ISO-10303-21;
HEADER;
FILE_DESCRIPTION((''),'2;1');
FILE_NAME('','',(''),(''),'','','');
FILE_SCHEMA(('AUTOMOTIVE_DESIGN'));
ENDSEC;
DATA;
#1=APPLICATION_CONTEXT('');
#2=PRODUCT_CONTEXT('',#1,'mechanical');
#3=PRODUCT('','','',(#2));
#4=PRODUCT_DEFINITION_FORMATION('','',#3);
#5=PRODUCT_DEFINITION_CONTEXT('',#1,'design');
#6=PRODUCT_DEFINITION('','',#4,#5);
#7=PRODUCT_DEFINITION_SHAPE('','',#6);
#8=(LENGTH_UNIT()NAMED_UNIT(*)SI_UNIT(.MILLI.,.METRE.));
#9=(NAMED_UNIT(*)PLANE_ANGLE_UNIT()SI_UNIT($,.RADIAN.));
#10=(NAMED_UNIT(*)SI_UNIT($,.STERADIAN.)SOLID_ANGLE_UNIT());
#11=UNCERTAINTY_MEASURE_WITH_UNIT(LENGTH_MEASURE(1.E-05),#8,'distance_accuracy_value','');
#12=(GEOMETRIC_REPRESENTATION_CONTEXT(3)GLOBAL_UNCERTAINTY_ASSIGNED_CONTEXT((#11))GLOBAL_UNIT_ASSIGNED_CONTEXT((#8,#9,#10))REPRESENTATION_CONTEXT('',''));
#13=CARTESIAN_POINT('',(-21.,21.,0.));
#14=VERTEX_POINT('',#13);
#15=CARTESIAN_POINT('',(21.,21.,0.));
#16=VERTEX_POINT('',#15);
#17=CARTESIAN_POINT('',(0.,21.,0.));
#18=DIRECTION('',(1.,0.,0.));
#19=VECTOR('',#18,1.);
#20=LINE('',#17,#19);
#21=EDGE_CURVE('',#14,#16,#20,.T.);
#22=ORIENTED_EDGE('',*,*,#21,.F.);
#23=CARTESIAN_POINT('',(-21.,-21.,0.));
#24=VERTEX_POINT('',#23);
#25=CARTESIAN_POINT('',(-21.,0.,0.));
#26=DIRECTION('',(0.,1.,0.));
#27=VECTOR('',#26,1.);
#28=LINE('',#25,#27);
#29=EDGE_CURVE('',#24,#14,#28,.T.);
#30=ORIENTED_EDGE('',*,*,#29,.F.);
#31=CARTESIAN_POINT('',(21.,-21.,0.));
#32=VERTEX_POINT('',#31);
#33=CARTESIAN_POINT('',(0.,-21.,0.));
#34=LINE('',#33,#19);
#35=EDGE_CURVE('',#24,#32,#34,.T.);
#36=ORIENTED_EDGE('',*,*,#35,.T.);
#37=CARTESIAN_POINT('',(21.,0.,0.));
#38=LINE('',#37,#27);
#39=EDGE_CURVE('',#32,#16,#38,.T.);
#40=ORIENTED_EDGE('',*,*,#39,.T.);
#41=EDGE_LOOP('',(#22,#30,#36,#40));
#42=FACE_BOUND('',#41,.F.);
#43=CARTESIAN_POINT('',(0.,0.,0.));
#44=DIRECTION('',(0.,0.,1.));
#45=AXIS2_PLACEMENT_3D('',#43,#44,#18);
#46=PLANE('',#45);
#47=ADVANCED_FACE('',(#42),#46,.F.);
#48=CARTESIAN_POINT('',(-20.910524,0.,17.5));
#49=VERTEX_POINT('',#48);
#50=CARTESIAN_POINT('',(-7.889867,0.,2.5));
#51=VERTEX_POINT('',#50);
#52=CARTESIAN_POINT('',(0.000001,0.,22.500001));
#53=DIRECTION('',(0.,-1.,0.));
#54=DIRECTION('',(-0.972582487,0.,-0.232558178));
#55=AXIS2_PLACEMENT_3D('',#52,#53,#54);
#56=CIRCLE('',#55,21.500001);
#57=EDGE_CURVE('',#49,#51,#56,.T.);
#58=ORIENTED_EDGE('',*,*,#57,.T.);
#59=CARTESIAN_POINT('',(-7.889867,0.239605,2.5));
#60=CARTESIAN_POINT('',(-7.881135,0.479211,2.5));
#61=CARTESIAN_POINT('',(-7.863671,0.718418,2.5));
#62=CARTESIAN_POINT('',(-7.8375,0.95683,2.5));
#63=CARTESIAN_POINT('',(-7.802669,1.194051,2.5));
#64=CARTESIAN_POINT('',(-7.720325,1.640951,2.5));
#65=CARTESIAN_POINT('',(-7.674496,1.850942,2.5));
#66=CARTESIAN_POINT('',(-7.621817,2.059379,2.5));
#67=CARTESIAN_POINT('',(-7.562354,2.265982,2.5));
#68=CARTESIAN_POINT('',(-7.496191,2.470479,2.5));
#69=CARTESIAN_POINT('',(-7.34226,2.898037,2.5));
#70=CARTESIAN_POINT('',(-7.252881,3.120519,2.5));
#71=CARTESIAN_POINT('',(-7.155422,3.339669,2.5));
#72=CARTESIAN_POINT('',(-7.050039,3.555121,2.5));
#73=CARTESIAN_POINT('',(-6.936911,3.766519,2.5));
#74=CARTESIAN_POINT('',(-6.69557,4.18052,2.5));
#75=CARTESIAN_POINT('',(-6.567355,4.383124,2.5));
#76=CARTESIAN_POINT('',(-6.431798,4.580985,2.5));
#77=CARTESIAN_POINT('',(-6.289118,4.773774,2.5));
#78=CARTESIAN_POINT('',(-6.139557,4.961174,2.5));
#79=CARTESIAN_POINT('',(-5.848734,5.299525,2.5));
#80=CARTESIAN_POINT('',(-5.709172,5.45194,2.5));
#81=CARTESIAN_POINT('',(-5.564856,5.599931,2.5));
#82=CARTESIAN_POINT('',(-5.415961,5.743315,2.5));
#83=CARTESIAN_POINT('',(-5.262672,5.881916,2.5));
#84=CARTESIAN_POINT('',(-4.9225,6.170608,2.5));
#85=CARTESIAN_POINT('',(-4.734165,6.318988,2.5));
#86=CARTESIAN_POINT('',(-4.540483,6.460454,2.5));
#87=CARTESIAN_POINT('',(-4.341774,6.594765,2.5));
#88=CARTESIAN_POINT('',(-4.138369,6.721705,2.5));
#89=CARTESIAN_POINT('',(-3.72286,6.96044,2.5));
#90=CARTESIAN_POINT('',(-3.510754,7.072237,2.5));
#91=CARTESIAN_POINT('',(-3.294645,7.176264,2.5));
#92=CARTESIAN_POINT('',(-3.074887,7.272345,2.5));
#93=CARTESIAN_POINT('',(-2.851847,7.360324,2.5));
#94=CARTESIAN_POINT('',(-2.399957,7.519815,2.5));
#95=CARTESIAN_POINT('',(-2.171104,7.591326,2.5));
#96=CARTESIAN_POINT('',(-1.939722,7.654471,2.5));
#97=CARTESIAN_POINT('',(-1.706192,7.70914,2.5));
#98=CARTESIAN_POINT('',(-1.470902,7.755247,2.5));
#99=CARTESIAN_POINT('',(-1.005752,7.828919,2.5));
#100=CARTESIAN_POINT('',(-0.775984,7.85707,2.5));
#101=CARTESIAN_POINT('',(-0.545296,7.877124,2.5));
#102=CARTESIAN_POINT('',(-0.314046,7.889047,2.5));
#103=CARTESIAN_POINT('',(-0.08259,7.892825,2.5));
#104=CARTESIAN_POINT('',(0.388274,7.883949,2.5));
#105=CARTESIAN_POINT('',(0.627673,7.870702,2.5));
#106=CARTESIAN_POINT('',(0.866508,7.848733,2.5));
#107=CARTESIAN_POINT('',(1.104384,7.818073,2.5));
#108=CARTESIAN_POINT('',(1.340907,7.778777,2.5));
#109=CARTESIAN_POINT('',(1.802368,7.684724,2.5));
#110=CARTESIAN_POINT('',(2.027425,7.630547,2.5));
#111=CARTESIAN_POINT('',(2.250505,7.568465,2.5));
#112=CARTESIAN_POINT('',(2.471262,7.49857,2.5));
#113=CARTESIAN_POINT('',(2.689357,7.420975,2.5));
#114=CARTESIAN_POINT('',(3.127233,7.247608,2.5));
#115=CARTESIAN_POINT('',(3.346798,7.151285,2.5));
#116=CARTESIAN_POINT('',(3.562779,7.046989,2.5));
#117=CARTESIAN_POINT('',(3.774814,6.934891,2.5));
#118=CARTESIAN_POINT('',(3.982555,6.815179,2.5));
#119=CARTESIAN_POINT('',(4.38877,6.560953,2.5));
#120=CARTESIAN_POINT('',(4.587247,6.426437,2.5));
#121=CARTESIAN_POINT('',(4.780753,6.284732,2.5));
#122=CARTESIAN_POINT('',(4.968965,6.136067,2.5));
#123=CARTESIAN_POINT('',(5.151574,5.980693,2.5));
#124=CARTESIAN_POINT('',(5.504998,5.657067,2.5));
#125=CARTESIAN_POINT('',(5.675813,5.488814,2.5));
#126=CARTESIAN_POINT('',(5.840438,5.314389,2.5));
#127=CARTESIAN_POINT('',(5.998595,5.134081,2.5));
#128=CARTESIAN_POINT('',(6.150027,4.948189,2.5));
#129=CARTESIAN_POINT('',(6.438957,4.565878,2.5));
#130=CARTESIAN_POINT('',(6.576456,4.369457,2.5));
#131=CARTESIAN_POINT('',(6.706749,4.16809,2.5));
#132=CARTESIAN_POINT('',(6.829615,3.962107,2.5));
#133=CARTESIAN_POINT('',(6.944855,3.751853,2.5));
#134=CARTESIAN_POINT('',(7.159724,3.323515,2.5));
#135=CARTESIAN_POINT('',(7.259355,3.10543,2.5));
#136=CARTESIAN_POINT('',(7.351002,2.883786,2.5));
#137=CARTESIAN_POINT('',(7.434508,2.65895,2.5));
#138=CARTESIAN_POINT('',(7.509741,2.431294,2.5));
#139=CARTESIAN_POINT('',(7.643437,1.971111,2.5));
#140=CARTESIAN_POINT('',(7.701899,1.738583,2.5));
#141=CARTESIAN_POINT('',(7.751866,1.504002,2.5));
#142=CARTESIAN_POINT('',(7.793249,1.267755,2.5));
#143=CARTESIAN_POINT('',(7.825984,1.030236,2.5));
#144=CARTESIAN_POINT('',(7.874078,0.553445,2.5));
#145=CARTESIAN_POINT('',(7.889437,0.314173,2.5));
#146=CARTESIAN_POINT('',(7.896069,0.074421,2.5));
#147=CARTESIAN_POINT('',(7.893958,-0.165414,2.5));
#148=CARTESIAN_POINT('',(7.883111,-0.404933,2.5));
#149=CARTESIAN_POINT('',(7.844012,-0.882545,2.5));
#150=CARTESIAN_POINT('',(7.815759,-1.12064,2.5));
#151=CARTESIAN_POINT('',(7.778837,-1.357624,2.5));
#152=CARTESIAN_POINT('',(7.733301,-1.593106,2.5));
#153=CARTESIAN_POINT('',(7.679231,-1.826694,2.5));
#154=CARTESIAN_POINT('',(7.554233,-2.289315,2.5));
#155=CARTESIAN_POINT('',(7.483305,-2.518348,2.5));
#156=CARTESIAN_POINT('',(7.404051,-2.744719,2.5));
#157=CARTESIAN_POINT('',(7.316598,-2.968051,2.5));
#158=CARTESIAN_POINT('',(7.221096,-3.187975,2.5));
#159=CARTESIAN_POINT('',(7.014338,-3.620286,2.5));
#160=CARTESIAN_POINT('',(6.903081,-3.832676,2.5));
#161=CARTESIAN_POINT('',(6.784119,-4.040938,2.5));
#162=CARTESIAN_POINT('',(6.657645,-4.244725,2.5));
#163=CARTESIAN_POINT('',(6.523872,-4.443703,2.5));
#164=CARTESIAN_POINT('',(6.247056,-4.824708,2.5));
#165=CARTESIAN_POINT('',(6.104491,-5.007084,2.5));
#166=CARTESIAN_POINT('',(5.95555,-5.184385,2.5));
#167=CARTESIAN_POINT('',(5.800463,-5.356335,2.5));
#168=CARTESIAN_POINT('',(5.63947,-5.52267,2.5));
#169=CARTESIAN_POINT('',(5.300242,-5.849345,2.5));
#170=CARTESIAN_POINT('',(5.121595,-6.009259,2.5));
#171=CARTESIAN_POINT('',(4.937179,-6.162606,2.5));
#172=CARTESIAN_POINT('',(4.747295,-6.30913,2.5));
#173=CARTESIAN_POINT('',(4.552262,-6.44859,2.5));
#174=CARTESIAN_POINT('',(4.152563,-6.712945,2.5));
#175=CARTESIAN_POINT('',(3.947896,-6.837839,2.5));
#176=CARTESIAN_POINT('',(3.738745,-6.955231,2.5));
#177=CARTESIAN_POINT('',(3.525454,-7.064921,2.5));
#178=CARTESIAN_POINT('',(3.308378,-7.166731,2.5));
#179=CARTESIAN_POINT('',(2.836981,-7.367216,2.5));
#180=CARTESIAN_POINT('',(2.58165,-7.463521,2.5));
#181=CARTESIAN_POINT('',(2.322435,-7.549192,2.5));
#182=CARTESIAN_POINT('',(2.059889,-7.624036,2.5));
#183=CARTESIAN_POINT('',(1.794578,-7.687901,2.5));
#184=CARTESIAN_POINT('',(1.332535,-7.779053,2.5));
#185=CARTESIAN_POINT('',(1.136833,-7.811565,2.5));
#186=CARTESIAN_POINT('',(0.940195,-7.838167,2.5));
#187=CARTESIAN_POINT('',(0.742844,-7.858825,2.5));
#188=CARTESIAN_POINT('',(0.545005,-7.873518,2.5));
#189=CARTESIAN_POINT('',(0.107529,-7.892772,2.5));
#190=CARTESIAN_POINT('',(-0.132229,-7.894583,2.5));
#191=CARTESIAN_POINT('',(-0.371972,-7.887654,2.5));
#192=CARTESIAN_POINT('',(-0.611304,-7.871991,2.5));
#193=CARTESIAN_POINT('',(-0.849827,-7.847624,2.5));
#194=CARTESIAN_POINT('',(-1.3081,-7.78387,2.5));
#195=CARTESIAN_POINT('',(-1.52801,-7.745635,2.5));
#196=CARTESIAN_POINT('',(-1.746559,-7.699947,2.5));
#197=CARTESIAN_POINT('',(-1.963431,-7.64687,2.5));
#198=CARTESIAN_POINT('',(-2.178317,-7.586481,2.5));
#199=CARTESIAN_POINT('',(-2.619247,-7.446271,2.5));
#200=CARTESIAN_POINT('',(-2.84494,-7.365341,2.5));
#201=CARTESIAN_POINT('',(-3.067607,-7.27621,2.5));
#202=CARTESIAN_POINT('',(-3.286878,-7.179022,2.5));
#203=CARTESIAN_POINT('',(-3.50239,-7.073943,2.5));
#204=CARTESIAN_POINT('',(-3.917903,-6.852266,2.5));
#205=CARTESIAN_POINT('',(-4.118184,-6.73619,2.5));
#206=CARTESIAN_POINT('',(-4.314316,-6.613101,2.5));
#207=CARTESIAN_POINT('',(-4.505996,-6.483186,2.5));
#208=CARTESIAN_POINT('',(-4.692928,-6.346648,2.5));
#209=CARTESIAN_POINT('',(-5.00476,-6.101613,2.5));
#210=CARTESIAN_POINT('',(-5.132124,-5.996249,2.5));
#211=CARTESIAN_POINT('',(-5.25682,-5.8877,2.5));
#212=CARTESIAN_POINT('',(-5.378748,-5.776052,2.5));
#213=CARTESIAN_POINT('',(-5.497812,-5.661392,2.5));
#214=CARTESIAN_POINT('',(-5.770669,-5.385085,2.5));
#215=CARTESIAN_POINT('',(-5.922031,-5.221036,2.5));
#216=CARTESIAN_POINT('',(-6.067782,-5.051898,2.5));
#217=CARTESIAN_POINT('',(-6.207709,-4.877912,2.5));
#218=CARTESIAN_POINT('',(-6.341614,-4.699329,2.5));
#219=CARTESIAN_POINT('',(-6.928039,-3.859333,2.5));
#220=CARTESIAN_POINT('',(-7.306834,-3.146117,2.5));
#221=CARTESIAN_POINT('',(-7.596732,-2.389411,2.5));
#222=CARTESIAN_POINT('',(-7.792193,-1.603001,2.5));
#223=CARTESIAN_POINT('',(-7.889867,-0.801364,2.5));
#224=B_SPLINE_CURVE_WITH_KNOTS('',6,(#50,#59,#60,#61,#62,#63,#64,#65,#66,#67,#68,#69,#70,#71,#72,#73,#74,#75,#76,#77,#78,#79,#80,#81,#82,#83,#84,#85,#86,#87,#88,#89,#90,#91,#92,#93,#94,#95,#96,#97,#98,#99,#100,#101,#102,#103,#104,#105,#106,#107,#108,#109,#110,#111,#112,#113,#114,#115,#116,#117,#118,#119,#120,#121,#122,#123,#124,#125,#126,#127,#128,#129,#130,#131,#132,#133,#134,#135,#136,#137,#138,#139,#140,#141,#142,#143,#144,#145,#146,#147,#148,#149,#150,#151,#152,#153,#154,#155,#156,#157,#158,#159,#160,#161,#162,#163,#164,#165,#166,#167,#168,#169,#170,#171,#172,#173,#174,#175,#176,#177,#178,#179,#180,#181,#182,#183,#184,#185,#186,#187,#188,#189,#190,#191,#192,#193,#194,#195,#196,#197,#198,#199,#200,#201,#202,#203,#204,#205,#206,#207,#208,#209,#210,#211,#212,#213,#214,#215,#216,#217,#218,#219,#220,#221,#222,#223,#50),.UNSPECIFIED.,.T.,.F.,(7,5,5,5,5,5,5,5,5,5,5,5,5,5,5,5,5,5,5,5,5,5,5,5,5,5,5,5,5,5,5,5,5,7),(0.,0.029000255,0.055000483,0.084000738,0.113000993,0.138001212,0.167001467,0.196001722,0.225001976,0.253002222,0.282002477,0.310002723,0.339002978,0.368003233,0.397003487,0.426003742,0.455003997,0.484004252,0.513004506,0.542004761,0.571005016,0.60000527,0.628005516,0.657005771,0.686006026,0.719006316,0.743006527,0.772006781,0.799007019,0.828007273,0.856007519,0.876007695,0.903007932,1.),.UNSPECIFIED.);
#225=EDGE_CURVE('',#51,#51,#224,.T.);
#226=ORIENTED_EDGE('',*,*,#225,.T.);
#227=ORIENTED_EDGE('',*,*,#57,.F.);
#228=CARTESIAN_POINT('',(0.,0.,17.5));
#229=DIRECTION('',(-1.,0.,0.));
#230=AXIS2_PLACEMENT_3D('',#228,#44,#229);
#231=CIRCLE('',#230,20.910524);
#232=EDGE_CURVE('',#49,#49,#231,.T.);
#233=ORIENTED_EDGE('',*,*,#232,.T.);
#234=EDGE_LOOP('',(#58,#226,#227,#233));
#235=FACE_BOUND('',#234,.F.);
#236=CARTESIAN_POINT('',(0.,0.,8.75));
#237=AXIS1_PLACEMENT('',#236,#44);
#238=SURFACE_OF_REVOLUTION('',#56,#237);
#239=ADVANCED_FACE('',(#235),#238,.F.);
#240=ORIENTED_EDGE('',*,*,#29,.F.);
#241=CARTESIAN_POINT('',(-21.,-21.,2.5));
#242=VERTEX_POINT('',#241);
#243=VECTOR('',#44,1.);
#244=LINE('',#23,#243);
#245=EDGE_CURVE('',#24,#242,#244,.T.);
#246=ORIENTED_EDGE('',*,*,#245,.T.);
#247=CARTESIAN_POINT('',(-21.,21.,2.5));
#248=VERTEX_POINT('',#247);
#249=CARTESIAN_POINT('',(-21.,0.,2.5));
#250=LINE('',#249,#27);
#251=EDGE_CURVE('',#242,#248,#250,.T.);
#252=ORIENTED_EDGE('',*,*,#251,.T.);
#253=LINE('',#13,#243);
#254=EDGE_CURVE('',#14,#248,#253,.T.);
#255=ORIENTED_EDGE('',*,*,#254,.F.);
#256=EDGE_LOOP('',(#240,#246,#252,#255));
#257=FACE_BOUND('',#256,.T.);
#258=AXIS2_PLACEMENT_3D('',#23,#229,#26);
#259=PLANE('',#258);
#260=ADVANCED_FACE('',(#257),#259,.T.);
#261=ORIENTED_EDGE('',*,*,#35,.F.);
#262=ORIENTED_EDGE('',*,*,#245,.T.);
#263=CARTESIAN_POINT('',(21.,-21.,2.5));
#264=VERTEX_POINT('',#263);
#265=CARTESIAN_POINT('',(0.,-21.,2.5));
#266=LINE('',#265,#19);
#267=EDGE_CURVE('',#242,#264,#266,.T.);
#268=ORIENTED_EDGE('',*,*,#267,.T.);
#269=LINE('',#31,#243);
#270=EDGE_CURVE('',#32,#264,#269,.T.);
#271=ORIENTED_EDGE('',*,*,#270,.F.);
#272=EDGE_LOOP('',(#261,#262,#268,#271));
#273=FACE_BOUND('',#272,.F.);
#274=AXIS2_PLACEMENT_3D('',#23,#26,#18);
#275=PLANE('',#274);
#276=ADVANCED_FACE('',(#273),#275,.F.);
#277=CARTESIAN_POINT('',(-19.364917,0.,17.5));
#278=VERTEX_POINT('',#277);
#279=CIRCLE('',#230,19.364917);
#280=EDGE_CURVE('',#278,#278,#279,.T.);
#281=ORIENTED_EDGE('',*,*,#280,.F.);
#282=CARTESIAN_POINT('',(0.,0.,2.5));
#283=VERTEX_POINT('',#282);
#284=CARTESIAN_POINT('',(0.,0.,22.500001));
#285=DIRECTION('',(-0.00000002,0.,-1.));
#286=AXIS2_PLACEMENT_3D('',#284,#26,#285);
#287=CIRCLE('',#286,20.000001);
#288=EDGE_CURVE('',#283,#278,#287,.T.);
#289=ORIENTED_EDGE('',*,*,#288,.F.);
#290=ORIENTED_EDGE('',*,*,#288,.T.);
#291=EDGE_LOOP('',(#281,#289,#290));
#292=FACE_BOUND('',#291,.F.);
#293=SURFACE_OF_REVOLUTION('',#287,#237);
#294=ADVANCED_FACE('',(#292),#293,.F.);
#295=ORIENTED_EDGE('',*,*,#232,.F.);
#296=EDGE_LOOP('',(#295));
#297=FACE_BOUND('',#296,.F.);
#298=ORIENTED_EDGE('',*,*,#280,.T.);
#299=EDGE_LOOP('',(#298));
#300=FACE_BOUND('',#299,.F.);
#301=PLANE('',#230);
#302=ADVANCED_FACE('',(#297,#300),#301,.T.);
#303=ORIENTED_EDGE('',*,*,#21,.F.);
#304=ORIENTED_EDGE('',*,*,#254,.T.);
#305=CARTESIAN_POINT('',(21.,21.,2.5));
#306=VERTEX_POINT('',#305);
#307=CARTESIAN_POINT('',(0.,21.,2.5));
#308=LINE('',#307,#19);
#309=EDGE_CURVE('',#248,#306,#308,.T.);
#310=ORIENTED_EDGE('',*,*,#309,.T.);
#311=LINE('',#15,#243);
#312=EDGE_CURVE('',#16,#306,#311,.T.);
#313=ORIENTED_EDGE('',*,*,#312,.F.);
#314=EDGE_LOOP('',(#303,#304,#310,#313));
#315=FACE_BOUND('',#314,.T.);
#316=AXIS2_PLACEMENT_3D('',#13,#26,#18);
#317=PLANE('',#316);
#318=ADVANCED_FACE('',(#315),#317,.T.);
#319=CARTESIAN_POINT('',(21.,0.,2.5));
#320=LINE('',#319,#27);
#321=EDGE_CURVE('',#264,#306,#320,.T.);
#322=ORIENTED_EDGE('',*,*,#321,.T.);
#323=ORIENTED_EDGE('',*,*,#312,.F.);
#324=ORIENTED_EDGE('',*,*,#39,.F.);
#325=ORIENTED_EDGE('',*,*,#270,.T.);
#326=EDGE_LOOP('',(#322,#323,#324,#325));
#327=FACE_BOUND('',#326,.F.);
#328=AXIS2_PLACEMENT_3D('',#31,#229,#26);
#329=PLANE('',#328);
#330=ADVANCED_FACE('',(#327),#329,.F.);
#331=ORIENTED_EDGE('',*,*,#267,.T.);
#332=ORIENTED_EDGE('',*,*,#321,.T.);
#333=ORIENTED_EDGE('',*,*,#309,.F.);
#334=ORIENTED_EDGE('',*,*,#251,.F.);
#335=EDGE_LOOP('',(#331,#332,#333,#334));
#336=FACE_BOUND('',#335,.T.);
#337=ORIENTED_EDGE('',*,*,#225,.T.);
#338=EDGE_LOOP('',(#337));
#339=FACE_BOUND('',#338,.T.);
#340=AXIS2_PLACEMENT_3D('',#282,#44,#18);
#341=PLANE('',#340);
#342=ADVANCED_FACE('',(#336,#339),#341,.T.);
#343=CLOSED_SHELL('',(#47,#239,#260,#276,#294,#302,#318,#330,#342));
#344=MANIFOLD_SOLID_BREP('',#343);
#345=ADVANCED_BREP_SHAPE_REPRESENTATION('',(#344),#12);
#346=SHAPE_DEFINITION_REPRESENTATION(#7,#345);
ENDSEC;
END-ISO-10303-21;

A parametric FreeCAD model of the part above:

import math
import FreeCAD as App
import Part
import Sketcher


def add_polygon(sketch, points):
    """Adds a closed chain of lines whose ends are joined by coincident constraints."""
    first, n = sketch.GeometryCount, len(points)
    for a, b in zip(points, points[1:] + points[:1]):
        sketch.addGeometry(Part.LineSegment(App.Vector(*a, 0), App.Vector(*b, 0)), False)
    for i in range(n):
        sketch.addConstraint(Sketcher.Constraint("Coincident", first + i, 2, first + (i + 1) % n, 1))

doc = App.newDocument("Part")
body = doc.addObject("PartDesign::Body", "Body")

# Sketch on XY plane
sketch1 = doc.addObject("Sketcher::SketchObject", "Sketch")
body.addObject(sketch1)
sketch1.AttachmentSupport = (doc.XY_Plane, [""])
sketch1.MapMode = "FlatFace"
add_polygon(sketch1, [(-21, 21), (-21, -21), (21, -21), (21, 21)])  # lines 0-3
sketch1.addConstraint([
    Sketcher.Constraint("Vertical", 0),
    Sketcher.Constraint("Horizontal", 1),
    Sketcher.Constraint("Vertical", 2),
    Sketcher.Constraint("Horizontal", 3),
    Sketcher.Constraint("Symmetric", 0, 2, 2, 2, -1, 1),
    Sketcher.Constraint("Equal", 3, 0),
    Sketcher.Constraint("DistanceX", 1, 1, 1, 2, 42.0),
])
pad1 = doc.addObject("PartDesign::Pad", "Pad")
body.addObject(pad1)
pad1.Profile = sketch1
pad1.Length = 2.5

# Sketch on XZ plane
sketch2 = doc.addObject("Sketcher::SketchObject", "Sketch001")
body.addObject(sketch2)
sketch2.AttachmentSupport = (doc.XZ_Plane, [""])
sketch2.MapMode = "FlatFace"
sketch2.addGeometry([
    Part.ArcOfCircle(Part.Circle(App.Vector(0, 22.5, 0), App.Vector(0, 0, 1), 21.5), math.radians(-167), math.radians(-90)),
    Part.LineSegment(App.Vector(0, 1, 0), App.Vector(0, 2.5, 0)),
    Part.ArcOfCircle(Part.Circle(App.Vector(0, 22.5, 0), App.Vector(0, 0, 1), 20), math.radians(-166), math.radians(-90)),
    Part.LineSegment(App.Vector(-19.4, 17.5, 0), App.Vector(-20.9, 17.5, 0)),
], False)
sketch2.addConstraint([
    Sketcher.Constraint("Coincident", 0, 2, 1, 1),
    Sketcher.Constraint("Coincident", 1, 2, 2, 2),
    Sketcher.Constraint("Coincident", 2, 1, 3, 1),
    Sketcher.Constraint("Coincident", 3, 2, 0, 1),
    Sketcher.Constraint("Vertical", 1),
    Sketcher.Constraint("Horizontal", 3),
    Sketcher.Constraint("Coincident", 2, 3, 0, 3),
    Sketcher.Constraint("PointOnObject", 0, 3, -2),
    Sketcher.Constraint("PointOnObject", 0, 2, -2),
    Sketcher.Constraint("Radius", 2, 20.000001),
    Sketcher.Constraint("Radius", 0, 21.500001),
    Sketcher.Constraint("DistanceY", -1, 1, 0, 2, 1.0),
    Sketcher.Constraint("DistanceY", 2, 1, 2, 3, 5.000001),
])
revolution = doc.addObject("PartDesign::Revolution", "Revolution")
body.addObject(revolution)
revolution.Profile = sketch2
revolution.ReferenceAxis = (sketch2, ["V_Axis"])
revolution.Angle = 360

doc.recompute()
